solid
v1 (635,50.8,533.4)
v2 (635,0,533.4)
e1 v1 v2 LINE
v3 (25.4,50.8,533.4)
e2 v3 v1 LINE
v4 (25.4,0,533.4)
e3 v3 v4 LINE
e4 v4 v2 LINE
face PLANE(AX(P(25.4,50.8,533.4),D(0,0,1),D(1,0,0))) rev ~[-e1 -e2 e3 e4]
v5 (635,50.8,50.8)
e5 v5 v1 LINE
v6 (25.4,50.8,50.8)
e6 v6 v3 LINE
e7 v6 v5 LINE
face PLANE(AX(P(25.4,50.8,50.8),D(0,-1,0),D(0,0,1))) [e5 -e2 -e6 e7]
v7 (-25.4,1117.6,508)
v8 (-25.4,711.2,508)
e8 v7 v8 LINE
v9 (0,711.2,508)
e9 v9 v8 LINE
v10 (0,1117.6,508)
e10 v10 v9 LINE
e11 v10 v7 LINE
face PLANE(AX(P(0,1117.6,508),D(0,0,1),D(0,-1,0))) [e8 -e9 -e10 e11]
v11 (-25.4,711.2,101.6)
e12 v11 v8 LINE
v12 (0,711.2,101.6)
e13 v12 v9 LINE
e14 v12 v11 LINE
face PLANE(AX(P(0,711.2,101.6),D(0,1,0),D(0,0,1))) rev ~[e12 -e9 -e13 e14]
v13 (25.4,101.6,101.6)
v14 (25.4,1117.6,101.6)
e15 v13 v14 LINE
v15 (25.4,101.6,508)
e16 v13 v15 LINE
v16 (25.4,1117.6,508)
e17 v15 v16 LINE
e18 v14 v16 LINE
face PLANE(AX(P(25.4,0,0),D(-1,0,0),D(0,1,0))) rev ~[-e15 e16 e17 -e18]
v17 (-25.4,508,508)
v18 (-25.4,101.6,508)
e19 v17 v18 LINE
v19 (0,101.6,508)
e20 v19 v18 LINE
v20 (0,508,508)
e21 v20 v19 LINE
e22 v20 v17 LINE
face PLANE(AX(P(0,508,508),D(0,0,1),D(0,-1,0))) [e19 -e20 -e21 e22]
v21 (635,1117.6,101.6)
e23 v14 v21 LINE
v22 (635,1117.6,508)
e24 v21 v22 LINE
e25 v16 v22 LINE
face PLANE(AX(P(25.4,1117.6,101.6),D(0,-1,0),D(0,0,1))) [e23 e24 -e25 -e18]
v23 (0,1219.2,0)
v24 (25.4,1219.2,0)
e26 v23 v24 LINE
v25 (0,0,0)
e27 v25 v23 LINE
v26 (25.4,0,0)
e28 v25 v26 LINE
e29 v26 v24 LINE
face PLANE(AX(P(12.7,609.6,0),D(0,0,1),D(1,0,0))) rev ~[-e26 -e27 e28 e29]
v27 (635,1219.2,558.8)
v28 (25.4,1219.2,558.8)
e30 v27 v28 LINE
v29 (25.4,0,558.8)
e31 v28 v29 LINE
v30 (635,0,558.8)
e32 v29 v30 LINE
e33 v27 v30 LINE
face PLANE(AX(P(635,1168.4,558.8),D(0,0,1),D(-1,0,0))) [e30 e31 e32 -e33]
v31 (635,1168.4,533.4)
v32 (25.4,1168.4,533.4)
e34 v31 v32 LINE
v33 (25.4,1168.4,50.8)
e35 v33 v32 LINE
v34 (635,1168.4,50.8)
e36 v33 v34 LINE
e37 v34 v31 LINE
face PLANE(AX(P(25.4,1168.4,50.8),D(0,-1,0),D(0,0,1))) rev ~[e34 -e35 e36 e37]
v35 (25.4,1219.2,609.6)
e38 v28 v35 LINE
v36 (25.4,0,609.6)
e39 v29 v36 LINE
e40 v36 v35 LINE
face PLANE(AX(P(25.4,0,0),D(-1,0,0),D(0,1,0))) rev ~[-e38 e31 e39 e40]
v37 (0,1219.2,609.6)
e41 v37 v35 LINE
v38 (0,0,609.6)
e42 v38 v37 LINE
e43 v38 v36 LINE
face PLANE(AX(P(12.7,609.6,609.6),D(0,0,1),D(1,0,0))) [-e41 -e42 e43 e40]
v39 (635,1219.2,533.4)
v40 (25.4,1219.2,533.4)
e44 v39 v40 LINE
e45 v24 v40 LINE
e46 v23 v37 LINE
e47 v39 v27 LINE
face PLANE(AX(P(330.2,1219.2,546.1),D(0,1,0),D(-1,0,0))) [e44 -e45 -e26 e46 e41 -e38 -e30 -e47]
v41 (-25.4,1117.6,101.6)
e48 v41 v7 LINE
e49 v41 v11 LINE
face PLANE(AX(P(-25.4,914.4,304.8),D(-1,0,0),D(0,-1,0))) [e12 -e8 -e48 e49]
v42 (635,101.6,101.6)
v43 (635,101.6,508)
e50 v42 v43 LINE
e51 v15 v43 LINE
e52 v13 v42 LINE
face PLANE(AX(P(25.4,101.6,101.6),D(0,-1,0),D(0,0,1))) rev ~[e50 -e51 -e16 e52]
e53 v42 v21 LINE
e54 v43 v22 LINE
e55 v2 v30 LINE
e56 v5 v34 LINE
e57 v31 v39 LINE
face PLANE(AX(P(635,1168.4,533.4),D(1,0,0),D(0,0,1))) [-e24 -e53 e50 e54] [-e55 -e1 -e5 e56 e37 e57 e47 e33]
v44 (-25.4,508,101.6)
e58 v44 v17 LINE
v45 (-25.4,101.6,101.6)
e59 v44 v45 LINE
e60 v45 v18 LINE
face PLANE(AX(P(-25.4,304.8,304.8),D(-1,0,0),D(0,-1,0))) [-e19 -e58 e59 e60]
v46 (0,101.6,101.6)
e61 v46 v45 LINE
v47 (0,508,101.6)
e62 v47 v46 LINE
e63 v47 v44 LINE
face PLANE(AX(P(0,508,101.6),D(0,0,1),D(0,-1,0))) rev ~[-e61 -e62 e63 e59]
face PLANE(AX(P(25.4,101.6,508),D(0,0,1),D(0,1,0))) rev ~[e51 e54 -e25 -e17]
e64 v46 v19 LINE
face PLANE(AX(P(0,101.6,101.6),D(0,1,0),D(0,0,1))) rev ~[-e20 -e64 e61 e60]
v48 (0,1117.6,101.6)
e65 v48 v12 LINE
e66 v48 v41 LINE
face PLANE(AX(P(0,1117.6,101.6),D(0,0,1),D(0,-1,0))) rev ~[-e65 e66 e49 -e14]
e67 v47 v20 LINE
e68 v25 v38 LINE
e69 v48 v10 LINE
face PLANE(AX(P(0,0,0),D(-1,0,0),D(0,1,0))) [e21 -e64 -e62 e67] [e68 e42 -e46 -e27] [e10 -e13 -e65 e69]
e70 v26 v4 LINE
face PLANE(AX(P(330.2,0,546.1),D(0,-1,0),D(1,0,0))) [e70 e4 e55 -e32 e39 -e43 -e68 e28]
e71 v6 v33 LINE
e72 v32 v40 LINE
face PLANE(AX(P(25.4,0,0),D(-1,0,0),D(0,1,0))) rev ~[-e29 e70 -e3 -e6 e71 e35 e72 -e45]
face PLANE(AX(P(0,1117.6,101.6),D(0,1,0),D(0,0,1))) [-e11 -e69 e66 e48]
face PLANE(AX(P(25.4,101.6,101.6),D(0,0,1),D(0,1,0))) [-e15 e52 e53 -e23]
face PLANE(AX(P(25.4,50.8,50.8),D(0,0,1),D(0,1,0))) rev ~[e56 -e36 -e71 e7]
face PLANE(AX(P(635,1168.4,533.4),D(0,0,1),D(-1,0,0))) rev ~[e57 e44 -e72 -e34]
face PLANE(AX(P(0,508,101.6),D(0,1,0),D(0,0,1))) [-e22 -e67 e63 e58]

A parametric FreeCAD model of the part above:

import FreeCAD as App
import Part
import Sketcher
Q = App.Units.Quantity


def add_polygon(sketch, points):
    """Adds a closed chain of lines whose ends are joined by coincident constraints."""
    first, n = sketch.GeometryCount, len(points)
    for a, b in zip(points, points[1:] + points[:1]):
        sketch.addGeometry(Part.LineSegment(App.Vector(*a, 0), App.Vector(*b, 0)), False)
    for i in range(n):
        sketch.addConstraint(Sketcher.Constraint("Coincident", first + i, 2, first + (i + 1) % n, 1))

doc = App.newDocument("Part")
body = doc.addObject("PartDesign::Body", "Body")

# Sketch on XY plane
sketch1 = body.newObject("Sketcher::SketchObject", "Sketch")
sketch1.AttachmentSupport = (doc.getObject("XY_Plane"), [""])
sketch1.MapMode = "FlatFace"
add_polygon(sketch1, [(0, 1219.2), (0, 0), (25.4, 0), (25.4, 1219.2)])  # lines 0-3
sketch1.addConstraint([
    Sketcher.Constraint("Vertical", 0),
    Sketcher.Constraint("Horizontal", 1),
    Sketcher.Constraint("Vertical", 2),
    Sketcher.Constraint("Horizontal", 3),
    Sketcher.Constraint("Coincident", 0, 2, -1, 1),
    Sketcher.Constraint("DistanceX", 1, 1, 1, 2, Q("1 in")),
    Sketcher.Constraint("DistanceY", 0, 2, 0, 1, Q("48 in")),
])
pad1 = body.newObject("PartDesign::Pad", "Pad")
pad1.Profile = sketch1
pad1.Length = Q("24 in")

# Sketch on YZ plane
sketch2 = body.newObject("Sketcher::SketchObject", "Sketch001")
sketch2.AttachmentSupport = (doc.getObject("YZ_Plane"), [""])
sketch2.MapMode = "FlatFace"
sketch2.AttachmentOffset = App.Placement(App.Vector(0, 0, 1 * 25.4), App.Rotation())
add_polygon(sketch2, [(50.8, 558.8), (50.8, 50.8), (1168.4, 50.8), (1168.4, 558.8)])  # lines 0-3
add_polygon(sketch2, [(1117.6, 101.6), (101.6, 101.6), (101.6, 508), (1117.6, 508)])  # lines 4-7
sketch2.addConstraint([
    Sketcher.Constraint("Vertical", 0),
    Sketcher.Constraint("Horizontal", 1),
    Sketcher.Constraint("Vertical", 2),
    Sketcher.Constraint("Horizontal", 3),
    Sketcher.Constraint("Horizontal", 4),
    Sketcher.Constraint("Vertical", 5),
    Sketcher.Constraint("Horizontal", 6),
    Sketcher.Constraint("Vertical", 7),
    Sketcher.Constraint("DistanceX", 1, 1, 1, 2, Q("44 in")),
    Sketcher.Constraint("DistanceX", 4, 2, 4, 1, Q("40 in")),
    Sketcher.Constraint("DistanceY", 0, 2, 0, 1, Q("20 in")),
    Sketcher.Constraint("DistanceY", 5, 1, 5, 2, Q("16 in")),
    Sketcher.Constraint("DistanceX", -1, 1, 0, 2, Q("2 in")),
    Sketcher.Constraint("DistanceY", -1, 1, 0, 2, Q("2 in")),
    Sketcher.Constraint("DistanceX", -1, 1, 4, 2, Q("4 in")),
    Sketcher.Constraint("DistanceY", -1, 1, 4, 2, Q("4 in")),
])
pad2 = body.newObject("PartDesign::Pad", "Pad001")
pad2.Profile = sketch2
pad2.Length = Q("24 in")

# Sketch on YZ plane
sketch3 = body.newObject("Sketcher::SketchObject", "Sketch002")
sketch3.AttachmentSupport = (doc.getObject("YZ_Plane"), [""])
sketch3.MapMode = "FlatFace"
add_polygon(sketch3, [(1117.6, 508), (1117.6, 101.6), (711.2, 101.6), (711.2, 508)])  # lines 0-3
add_polygon(sketch3, [(508, 508), (508, 101.6), (101.6, 101.6), (101.6, 508)])  # lines 4-7
sketch3.addConstraint([
    Sketcher.Constraint("Vertical", 0),
    Sketcher.Constraint("Horizontal", 1),
    Sketcher.Constraint("Vertical", 2),
    Sketcher.Constraint("Horizontal", 3),
    Sketcher.Constraint("Vertical", 4),
    Sketcher.Constraint("Horizontal", 5),
    Sketcher.Constraint("Vertical", 6),
    Sketcher.Constraint("Horizontal", 7),
    Sketcher.Constraint("Horizontal", 1, 2, 4, 2),
    Sketcher.Constraint("Horizontal", 3, 2, 6, 2),
    Sketcher.Constraint("Equal", 3, 5),
    Sketcher.Constraint("Equal", 7, 0),
    Sketcher.Constraint("DistanceX", 1, 2, 1, 1, Q("16 in")),
    Sketcher.Constraint("DistanceX", -1, 1, 0, 2, Q("44 in")),
    Sketcher.Constraint("DistanceY", -1, 1, 0, 2, Q("4 in")),
    Sketcher.Constraint("DistanceX", -1, 1, 4, 2, Q("20 in")),
])
pad3 = body.newObject("PartDesign::Pad", "Pad002")
pad3.Profile = sketch3
pad3.Length = Q("1 in")
pad3.Reversed = True

# Sketch on XZ plane
sketch4 = body.newObject("Sketcher::SketchObject", "Sketch003")
sketch4.AttachmentSupport = (doc.getObject("XZ_Plane"), [""])
sketch4.MapMode = "FlatFace"
sketch4.AttachmentOffset = App.Placement(App.Vector(0, 0, -2 * 25.4), App.Rotation())
add_polygon(sketch4, [(25.4, 558.8), (25.4, 533.4), (635, 533.4), (635, 558.8)])  # lines 0-3
sketch4.addConstraint([
    Sketcher.Constraint("Vertical", 0),
    Sketcher.Constraint("Horizontal", 1),
    Sketcher.Constraint("Vertical", 2),
    Sketcher.Constraint("Horizontal", 3),
    Sketcher.Constraint("DistanceX", 1, 1, 1, 2, Q("24 in")),
    Sketcher.Constraint("DistanceY", 0, 2, 0, 1, Q("1 in")),
    Sketcher.Constraint("DistanceX", -1, 1, 0, 2, Q("1 in")),
    Sketcher.Constraint("DistanceY", -1, 1, 0, 2, Q("21 in")),
])
pad4 = body.newObject("PartDesign::Pad", "Pad003")
pad4.Profile = sketch4
pad4.Length = Q("2 in")

# Sketch on XZ plane
sketch5 = body.newObject("Sketcher::SketchObject", "Sketch004")
sketch5.AttachmentSupport = (doc.getObject("XZ_Plane"), [""])
sketch5.MapMode = "FlatFace"
sketch5.AttachmentOffset = App.Placement(App.Vector(0, 0, -46 * 25.4), App.Rotation())
add_polygon(sketch5, [(635, 558.8), (635, 533.4), (25.4, 533.4), (25.4, 558.8)])  # lines 0-3
sketch5.addConstraint([
    Sketcher.Constraint("Vertical", 0),
    Sketcher.Constraint("Horizontal", 1),
    Sketcher.Constraint("Vertical", 2),
    Sketcher.Constraint("Horizontal", 3),
    Sketcher.Constraint("DistanceX", 1, 2, 1, 1, Q("24 in")),
    Sketcher.Constraint("DistanceY", 0, 2, 0, 1, Q("1 in")),
    Sketcher.Constraint("DistanceX", -1, 1, 0, 2, Q("25 in")),
    Sketcher.Constraint("DistanceY", -1, 1, 0, 2, Q("21 in")),
])
pad5 = body.newObject("PartDesign::Pad", "Pad004")
pad5.Profile = sketch5
pad5.Length = Q("2 in")
pad5.Reversed = True

doc.recompute()
